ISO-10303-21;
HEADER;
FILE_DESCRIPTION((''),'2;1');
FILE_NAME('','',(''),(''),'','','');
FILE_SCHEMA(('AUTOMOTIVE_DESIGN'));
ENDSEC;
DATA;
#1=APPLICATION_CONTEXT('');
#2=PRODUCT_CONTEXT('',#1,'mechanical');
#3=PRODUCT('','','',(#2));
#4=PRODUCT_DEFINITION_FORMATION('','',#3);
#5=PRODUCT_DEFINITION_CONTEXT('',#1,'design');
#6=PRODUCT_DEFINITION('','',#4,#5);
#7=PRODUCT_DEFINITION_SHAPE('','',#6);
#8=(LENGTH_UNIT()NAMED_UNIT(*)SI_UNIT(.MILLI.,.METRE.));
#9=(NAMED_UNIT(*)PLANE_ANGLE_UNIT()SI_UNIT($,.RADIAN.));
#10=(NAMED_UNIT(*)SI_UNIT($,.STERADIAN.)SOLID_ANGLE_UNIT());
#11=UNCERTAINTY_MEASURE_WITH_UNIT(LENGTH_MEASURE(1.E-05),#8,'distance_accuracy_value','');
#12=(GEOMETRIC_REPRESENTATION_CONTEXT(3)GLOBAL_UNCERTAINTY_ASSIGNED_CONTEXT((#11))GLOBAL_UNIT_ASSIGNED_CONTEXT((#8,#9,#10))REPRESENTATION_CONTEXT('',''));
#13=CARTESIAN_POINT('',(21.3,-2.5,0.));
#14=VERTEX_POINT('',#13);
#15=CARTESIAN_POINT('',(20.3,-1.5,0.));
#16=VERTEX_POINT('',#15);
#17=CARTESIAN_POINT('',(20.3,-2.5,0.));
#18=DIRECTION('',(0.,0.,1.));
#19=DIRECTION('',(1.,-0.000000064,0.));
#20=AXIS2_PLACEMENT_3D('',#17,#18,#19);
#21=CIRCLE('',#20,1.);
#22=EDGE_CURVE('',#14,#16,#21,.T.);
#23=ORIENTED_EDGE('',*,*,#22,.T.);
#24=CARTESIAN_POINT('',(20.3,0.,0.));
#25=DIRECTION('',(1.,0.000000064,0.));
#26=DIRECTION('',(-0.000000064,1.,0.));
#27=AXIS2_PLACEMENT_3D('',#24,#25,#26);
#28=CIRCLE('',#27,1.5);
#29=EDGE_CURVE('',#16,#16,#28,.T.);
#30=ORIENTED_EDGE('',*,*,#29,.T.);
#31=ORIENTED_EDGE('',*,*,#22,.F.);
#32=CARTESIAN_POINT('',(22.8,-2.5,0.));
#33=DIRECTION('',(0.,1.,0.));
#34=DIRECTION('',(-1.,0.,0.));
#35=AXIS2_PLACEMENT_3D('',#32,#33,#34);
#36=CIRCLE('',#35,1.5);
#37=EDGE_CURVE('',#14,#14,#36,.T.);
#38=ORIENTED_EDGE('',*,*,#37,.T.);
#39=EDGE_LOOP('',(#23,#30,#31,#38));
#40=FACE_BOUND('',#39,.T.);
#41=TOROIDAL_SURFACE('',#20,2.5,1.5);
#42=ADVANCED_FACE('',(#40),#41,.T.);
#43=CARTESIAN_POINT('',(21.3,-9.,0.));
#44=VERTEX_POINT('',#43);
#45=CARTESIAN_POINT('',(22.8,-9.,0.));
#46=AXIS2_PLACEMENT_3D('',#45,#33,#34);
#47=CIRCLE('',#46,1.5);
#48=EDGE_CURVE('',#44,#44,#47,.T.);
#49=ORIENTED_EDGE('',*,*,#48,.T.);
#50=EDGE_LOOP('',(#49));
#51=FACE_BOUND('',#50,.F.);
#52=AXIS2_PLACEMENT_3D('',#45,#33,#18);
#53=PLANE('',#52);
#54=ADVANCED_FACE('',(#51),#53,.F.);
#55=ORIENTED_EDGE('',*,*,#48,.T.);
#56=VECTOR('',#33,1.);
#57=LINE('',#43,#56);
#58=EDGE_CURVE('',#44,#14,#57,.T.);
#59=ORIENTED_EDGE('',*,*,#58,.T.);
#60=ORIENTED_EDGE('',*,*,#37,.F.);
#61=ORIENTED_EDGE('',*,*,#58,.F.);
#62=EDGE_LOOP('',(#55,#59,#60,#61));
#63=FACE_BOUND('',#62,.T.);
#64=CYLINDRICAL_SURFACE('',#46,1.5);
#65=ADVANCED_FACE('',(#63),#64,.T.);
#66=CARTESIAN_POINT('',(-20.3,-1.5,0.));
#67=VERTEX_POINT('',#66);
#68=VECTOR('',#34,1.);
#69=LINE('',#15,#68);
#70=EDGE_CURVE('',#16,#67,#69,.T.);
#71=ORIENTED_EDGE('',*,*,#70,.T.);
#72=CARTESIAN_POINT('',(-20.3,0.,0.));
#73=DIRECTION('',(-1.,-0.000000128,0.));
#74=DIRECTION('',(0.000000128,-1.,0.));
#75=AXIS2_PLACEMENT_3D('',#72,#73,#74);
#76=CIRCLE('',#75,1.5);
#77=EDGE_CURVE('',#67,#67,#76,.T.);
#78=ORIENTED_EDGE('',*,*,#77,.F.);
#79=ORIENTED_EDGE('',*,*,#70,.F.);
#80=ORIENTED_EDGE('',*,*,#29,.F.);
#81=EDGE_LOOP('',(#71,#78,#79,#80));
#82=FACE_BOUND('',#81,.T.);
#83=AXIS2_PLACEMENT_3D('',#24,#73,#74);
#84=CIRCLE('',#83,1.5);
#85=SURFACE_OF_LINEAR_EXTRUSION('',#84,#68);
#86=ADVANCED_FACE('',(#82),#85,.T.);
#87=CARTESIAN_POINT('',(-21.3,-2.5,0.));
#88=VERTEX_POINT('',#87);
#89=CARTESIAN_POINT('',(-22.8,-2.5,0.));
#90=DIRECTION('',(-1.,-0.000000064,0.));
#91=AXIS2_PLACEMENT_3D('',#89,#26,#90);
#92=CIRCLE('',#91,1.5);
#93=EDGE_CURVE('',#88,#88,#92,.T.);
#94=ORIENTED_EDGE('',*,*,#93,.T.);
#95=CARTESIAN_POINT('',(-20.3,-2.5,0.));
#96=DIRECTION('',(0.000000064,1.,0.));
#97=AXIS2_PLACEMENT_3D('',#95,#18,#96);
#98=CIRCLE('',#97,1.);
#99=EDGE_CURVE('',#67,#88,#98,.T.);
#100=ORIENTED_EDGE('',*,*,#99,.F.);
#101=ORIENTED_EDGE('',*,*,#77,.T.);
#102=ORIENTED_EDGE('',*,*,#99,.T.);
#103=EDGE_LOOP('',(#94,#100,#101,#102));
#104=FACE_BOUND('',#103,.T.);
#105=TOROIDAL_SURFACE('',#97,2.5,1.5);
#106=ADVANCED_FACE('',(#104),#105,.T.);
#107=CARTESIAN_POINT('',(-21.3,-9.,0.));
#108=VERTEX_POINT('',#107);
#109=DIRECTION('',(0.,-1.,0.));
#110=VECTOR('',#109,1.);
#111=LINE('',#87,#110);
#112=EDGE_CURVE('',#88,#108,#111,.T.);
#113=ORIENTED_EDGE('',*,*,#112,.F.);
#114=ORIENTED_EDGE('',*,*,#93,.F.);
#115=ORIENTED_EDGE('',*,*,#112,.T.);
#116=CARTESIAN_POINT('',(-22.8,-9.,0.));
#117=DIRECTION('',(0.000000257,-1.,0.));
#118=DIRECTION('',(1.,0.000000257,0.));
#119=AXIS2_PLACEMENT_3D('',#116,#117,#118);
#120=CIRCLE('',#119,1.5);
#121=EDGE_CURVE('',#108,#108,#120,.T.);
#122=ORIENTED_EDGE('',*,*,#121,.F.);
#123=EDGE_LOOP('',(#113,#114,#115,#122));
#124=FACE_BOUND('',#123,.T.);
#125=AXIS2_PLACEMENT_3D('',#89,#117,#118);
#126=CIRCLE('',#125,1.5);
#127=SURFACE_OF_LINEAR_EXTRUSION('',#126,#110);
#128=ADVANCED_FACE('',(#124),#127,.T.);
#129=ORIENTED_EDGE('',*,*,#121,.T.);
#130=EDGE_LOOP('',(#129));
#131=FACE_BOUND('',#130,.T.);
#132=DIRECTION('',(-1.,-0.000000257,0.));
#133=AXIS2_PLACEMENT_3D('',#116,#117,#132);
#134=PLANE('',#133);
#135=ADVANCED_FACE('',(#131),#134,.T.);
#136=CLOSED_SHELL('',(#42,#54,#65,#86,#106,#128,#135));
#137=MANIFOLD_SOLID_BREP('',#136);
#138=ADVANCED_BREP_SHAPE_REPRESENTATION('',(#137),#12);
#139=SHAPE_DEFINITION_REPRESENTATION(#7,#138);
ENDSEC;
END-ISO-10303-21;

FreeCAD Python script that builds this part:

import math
import FreeCAD as App
import Part
import Sketcher

doc = App.newDocument("Part")
body = doc.addObject("PartDesign::Body", "Body")

sketch1 = body.newObject("Sketcher::SketchObject", "Sketch")
sketch1.AttachmentSupport = (doc.getObject("XZ_Plane"), [""])
sketch1.MapMode = "FlatFace"
sketch1.AttachmentOffset = App.Placement(App.Vector(0, 0, 9), App.Rotation())
sketch1.addGeometry(Part.Circle(App.Vector(22.8, 0, 0), App.Vector(0, 0, 1), 1.5), False)
sketch1.addConstraint([
    Sketcher.Constraint("PointOnObject", 0, 3, -1),
    Sketcher.Constraint("Diameter", 0, 3.0),
    Sketcher.Constraint("DistanceX", -1, 1, 0, 3, 22.8),
])

sketch2 = body.newObject("Sketcher::SketchObject", "Sketch001")
sketch2.AttachmentSupport = (doc.getObject("XY_Plane"), [""])
sketch2.MapMode = "FlatFace"
sketch2.addGeometry([
    Part.LineSegment(App.Vector(22.8, -9, 0), App.Vector(22.8, -2.5, 0)),
    Part.ArcOfCircle(Part.Circle(App.Vector(20.3, -2.5, 0), App.Vector(0, 0, 1), 2.5), math.radians(0), math.radians(90)),
    Part.LineSegment(App.Vector(20.3, 0, 0), App.Vector(-20.3, 0, 0)),
    Part.ArcOfCircle(Part.Circle(App.Vector(-20.3, -2.5, 0), App.Vector(0, 0, 1), 2.5), math.radians(90), math.radians(180)),
    Part.LineSegment(App.Vector(-22.8, -2.5, 0), App.Vector(-22.8, -9, 0)),
], False)
sketch2.addConstraint([
    Sketcher.Constraint("Tangent", 0, 2, 1, 1),
    Sketcher.Constraint("Tangent", 1, 2, 2, 1),
    Sketcher.Constraint("Tangent", 2, 2, 3, 1),
    Sketcher.Constraint("Tangent", 3, 2, 4, 1),
    Sketcher.Constraint("Vertical", 0),
    Sketcher.Constraint("Horizontal", 2),
    Sketcher.Constraint("Vertical", 4),
    Sketcher.Constraint("Equal", 1, 3),
    Sketcher.Constraint("Symmetric", 1, 2, 2, 2, -1, 1),
    Sketcher.Constraint("Horizontal", 0, 1, 4, 2),
    Sketcher.Constraint("Radius", 1, 2.5),
    Sketcher.Constraint("DistanceX", 2, 2, 2, 1, 40.6),
    Sketcher.Constraint("DistanceY", 0, 1, 0, 2, 6.5),
])
doc.recompute()

additivepipe = body.newObject("PartDesign::AdditivePipe", "AdditivePipe")
additivepipe.Profile = sketch1
additivepipe.Spine = (sketch2, ["Edge1", "Edge2", "Edge3", "Edge4", "Edge5"])

doc.recompute()
